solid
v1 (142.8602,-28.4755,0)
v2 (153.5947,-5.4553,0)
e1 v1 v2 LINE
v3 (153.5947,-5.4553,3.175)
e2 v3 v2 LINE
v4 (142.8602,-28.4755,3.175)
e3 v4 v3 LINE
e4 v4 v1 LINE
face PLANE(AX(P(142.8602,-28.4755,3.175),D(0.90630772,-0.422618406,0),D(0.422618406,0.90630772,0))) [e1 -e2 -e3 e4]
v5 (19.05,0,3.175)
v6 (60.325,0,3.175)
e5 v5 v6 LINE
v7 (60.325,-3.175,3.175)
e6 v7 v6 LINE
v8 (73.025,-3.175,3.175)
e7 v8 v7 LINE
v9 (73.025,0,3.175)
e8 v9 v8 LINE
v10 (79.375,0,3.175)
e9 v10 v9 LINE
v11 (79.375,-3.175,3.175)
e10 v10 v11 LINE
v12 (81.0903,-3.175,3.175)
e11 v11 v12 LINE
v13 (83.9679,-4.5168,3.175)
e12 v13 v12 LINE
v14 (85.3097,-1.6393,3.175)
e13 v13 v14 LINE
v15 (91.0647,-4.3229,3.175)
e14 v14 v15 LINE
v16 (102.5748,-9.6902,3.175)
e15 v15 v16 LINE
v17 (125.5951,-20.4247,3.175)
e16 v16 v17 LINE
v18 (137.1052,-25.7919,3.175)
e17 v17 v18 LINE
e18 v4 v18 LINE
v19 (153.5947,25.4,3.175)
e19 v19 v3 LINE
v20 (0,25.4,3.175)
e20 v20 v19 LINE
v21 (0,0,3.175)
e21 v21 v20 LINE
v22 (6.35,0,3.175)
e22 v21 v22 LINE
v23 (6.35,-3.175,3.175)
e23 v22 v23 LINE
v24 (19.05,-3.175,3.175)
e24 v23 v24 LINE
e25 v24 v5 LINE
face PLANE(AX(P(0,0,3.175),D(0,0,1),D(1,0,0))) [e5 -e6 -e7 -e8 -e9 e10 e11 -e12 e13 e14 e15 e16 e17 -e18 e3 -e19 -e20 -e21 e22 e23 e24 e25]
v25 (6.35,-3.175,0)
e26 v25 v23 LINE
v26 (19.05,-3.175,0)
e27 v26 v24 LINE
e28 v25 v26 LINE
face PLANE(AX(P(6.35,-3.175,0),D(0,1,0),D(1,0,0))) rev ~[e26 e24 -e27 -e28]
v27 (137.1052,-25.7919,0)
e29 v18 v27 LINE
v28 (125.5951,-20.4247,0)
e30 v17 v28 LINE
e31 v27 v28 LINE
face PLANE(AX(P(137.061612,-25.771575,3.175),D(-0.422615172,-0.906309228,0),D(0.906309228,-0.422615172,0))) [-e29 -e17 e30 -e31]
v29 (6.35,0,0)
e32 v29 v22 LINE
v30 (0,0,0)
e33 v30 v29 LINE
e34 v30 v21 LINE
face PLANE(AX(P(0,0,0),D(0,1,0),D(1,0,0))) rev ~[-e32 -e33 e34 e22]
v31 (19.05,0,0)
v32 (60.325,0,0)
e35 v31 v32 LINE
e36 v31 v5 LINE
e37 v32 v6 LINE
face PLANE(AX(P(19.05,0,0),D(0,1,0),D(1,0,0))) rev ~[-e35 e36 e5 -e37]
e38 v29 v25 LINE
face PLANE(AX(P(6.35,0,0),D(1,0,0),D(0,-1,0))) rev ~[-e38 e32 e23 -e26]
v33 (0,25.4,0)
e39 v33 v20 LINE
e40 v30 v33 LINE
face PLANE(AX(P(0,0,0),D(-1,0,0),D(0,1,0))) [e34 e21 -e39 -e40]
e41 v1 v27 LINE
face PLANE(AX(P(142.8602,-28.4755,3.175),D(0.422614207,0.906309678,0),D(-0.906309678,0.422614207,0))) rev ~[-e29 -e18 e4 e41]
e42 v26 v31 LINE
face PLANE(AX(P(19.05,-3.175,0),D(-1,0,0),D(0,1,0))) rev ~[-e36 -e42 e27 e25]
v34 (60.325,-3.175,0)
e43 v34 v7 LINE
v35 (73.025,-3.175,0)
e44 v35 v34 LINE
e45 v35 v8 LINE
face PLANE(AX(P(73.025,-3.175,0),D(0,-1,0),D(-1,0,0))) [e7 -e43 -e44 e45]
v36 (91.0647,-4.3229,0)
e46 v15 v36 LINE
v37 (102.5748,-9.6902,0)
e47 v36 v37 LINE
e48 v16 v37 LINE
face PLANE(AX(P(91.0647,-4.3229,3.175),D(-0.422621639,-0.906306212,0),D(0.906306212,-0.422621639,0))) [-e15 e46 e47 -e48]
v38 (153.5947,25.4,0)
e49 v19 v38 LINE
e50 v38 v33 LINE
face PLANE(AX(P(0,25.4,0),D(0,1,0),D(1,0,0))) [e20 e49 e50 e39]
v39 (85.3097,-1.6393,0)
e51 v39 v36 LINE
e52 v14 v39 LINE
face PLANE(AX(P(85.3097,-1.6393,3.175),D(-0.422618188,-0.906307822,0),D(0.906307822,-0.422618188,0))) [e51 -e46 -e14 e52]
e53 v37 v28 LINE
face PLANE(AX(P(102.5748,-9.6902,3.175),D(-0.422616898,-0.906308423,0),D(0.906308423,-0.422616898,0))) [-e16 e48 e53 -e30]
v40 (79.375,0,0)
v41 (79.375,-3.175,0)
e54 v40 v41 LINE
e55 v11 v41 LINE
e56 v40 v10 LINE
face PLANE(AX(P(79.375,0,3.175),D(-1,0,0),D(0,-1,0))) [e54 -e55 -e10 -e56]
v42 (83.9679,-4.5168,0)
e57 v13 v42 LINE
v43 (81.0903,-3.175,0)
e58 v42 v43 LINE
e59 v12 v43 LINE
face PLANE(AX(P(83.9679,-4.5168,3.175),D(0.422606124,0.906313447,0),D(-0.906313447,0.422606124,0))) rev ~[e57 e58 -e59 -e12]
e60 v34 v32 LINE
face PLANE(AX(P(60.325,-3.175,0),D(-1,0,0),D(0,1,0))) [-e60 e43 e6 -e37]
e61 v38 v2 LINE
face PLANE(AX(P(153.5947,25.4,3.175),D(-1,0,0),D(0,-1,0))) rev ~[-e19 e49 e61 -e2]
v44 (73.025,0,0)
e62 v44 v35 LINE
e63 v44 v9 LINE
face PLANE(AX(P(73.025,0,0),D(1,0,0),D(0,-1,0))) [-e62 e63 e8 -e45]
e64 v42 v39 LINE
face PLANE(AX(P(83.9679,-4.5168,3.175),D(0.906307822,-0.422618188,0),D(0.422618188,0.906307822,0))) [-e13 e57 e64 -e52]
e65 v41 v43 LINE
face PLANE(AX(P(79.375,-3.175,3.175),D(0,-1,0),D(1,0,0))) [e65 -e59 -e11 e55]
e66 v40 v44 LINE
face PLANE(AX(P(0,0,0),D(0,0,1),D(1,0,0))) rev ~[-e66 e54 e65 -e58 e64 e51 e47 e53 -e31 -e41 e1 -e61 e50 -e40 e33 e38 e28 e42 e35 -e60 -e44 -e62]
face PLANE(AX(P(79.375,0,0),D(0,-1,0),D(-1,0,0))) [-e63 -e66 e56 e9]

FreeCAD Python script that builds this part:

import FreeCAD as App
import Part
import Sketcher

V = App.Vector
Q = App.Units.Quantity


def add_polygon(sketch, points):
    """Adds a closed chain of lines whose ends are joined by coincident constraints."""
    first, n = sketch.GeometryCount, len(points)
    for a, b in zip(points, points[1:] + points[:1]):
        sketch.addGeometry(Part.LineSegment(App.Vector(*a, 0), App.Vector(*b, 0)), False)
    for i in range(n):
        sketch.addConstraint(Sketcher.Constraint("Coincident", first + i, 2, first + (i + 1) % n, 1))

doc = App.newDocument("Part")
body = doc.addObject("PartDesign::Body", "Body")

sketch1 = body.newObject("Sketcher::SketchObject", "Sketch")
sketch1.AttachmentSupport = (doc.getObject("XY_Plane"), [""])
sketch1.MapMode = "FlatFace"
add_polygon(sketch1, [(0, 25.4), (0, 0), (6.3, 0), (6.3, -3.2), (19.1, -3.2), (19.1, 0), (60.3, 0), (60.3, -3.2), (73, -3.2), (73, 0), (79.4, 0), (79.4, 25.4)])
sketch1.addConstraint([
    Sketcher.Constraint("Vertical", 0),
    Sketcher.Constraint("Horizontal", 1),
    Sketcher.Constraint("Vertical", 2),
    Sketcher.Constraint("Horizontal", 3),
    Sketcher.Constraint("Vertical", 4),
    Sketcher.Constraint("Horizontal", 5),
    Sketcher.Constraint("Vertical", 6),
    Sketcher.Constraint("Horizontal", 7),
    Sketcher.Constraint("Vertical", 8),
    Sketcher.Constraint("Horizontal", 9),
    Sketcher.Constraint("Vertical", 10),
    Sketcher.Constraint("Horizontal", 11),
    Sketcher.Constraint("Coincident", 0, 2, -1, 1),
    Sketcher.Constraint("PointOnObject", 4, 2, -1),
    Sketcher.Constraint("PointOnObject", 8, 2, -1),
    Sketcher.Constraint("Horizontal", 3, 2, 6, 2),
    Sketcher.Constraint("Equal", 3, 7),
    Sketcher.Constraint("Equal", 1, 9),
    Sketcher.Constraint("DistanceY", 0, 2, 0, 1, Q("1 in")),
    Sketcher.Constraint("DistanceX", 3, 1, 3, 2, Q("0.5 in")),
    Sketcher.Constraint("DistanceX", 1, 1, 1, 2, Q("0.25 in")),
    Sketcher.Constraint("DistanceX", 11, 2, 11, 1, Q("3.125 in")),
    Sketcher.Constraint("DistanceY", 2, 2, 2, 1, Q("0.125 in")),
])
pad1 = body.newObject("PartDesign::Pad", "Pad")
pad1.Profile = sketch1
pad1.Length = Q("0.125 in")

sketch2 = body.newObject("Sketcher::SketchObject", "Sketch001")
sketch2.AttachmentSupport = (doc.getObject("XY_Plane"), [""])
sketch2.MapMode = "FlatFace"
sketch2.AttachmentOffset = App.Placement(V(0, 0, 0.125 * 25.4), App.Rotation())
add_polygon(sketch2, [(102.6, -9.7), (125.6, -20.4), (137.1, -25.8), (142.9, -28.5), (153.6, -5.5), (153.6, 25.4), (79.4, 25.4), (79.4, -3.2), (81.1, -3.2), (84, -4.5), (85.3, -1.6), (91.1, -4.3)])
sketch2.addConstraint([
    Sketcher.Constraint("Vertical", 4),
    Sketcher.Constraint("Horizontal", 5),
    Sketcher.Constraint("Vertical", 6),
    Sketcher.Constraint("Horizontal", 7),
    Sketcher.Constraint("Parallel", 0, 1),
    Sketcher.Constraint("Parallel", 1, 2),
    Sketcher.Constraint("Perpendicular", 2, 3),
    Sketcher.Constraint("Perpendicular", 3, 8),
    Sketcher.Constraint("Perpendicular", 8, 9),
    Sketcher.Constraint("Perpendicular", 9, 10),
    Sketcher.Constraint("Parallel", 10, 11),
    Sketcher.Constraint("Equal", 0, 3),
    Sketcher.Constraint("Equal", 8, 9),
    Sketcher.Constraint("Equal", 2, 10),
    Sketcher.Constraint("Equal", 1, 11),
    Sketcher.Constraint("Distance", 0, Q("1 in")),
    Sketcher.Constraint("DistanceY", -1, 1, 4, 2, Q("1 in")),
    Sketcher.Constraint("Angle", 0, Q("-25 deg")),
    Sketcher.Constraint("Distance", 1, Q("0.5 in")),
    Sketcher.Constraint("Distance", 2, Q("0.25 in")),
    Sketcher.Constraint("DistanceY", 6, 2, 6, 1, Q("1.125 in")),
    Sketcher.Constraint("Distance", 8, Q("0.125 in")),
    Sketcher.Constraint("DistanceX", -1, 1, 5, 2, Q("3.125 in")),
    Sketcher.Constraint("DistanceX", 5, 2, 5, 1, 74.2197),
])
pad2 = body.newObject("PartDesign::Pad", "Pad001")
pad2.Profile = sketch2
pad2.Length = Q("0.125 in")
pad2.Reversed = True

doc.recompute()
